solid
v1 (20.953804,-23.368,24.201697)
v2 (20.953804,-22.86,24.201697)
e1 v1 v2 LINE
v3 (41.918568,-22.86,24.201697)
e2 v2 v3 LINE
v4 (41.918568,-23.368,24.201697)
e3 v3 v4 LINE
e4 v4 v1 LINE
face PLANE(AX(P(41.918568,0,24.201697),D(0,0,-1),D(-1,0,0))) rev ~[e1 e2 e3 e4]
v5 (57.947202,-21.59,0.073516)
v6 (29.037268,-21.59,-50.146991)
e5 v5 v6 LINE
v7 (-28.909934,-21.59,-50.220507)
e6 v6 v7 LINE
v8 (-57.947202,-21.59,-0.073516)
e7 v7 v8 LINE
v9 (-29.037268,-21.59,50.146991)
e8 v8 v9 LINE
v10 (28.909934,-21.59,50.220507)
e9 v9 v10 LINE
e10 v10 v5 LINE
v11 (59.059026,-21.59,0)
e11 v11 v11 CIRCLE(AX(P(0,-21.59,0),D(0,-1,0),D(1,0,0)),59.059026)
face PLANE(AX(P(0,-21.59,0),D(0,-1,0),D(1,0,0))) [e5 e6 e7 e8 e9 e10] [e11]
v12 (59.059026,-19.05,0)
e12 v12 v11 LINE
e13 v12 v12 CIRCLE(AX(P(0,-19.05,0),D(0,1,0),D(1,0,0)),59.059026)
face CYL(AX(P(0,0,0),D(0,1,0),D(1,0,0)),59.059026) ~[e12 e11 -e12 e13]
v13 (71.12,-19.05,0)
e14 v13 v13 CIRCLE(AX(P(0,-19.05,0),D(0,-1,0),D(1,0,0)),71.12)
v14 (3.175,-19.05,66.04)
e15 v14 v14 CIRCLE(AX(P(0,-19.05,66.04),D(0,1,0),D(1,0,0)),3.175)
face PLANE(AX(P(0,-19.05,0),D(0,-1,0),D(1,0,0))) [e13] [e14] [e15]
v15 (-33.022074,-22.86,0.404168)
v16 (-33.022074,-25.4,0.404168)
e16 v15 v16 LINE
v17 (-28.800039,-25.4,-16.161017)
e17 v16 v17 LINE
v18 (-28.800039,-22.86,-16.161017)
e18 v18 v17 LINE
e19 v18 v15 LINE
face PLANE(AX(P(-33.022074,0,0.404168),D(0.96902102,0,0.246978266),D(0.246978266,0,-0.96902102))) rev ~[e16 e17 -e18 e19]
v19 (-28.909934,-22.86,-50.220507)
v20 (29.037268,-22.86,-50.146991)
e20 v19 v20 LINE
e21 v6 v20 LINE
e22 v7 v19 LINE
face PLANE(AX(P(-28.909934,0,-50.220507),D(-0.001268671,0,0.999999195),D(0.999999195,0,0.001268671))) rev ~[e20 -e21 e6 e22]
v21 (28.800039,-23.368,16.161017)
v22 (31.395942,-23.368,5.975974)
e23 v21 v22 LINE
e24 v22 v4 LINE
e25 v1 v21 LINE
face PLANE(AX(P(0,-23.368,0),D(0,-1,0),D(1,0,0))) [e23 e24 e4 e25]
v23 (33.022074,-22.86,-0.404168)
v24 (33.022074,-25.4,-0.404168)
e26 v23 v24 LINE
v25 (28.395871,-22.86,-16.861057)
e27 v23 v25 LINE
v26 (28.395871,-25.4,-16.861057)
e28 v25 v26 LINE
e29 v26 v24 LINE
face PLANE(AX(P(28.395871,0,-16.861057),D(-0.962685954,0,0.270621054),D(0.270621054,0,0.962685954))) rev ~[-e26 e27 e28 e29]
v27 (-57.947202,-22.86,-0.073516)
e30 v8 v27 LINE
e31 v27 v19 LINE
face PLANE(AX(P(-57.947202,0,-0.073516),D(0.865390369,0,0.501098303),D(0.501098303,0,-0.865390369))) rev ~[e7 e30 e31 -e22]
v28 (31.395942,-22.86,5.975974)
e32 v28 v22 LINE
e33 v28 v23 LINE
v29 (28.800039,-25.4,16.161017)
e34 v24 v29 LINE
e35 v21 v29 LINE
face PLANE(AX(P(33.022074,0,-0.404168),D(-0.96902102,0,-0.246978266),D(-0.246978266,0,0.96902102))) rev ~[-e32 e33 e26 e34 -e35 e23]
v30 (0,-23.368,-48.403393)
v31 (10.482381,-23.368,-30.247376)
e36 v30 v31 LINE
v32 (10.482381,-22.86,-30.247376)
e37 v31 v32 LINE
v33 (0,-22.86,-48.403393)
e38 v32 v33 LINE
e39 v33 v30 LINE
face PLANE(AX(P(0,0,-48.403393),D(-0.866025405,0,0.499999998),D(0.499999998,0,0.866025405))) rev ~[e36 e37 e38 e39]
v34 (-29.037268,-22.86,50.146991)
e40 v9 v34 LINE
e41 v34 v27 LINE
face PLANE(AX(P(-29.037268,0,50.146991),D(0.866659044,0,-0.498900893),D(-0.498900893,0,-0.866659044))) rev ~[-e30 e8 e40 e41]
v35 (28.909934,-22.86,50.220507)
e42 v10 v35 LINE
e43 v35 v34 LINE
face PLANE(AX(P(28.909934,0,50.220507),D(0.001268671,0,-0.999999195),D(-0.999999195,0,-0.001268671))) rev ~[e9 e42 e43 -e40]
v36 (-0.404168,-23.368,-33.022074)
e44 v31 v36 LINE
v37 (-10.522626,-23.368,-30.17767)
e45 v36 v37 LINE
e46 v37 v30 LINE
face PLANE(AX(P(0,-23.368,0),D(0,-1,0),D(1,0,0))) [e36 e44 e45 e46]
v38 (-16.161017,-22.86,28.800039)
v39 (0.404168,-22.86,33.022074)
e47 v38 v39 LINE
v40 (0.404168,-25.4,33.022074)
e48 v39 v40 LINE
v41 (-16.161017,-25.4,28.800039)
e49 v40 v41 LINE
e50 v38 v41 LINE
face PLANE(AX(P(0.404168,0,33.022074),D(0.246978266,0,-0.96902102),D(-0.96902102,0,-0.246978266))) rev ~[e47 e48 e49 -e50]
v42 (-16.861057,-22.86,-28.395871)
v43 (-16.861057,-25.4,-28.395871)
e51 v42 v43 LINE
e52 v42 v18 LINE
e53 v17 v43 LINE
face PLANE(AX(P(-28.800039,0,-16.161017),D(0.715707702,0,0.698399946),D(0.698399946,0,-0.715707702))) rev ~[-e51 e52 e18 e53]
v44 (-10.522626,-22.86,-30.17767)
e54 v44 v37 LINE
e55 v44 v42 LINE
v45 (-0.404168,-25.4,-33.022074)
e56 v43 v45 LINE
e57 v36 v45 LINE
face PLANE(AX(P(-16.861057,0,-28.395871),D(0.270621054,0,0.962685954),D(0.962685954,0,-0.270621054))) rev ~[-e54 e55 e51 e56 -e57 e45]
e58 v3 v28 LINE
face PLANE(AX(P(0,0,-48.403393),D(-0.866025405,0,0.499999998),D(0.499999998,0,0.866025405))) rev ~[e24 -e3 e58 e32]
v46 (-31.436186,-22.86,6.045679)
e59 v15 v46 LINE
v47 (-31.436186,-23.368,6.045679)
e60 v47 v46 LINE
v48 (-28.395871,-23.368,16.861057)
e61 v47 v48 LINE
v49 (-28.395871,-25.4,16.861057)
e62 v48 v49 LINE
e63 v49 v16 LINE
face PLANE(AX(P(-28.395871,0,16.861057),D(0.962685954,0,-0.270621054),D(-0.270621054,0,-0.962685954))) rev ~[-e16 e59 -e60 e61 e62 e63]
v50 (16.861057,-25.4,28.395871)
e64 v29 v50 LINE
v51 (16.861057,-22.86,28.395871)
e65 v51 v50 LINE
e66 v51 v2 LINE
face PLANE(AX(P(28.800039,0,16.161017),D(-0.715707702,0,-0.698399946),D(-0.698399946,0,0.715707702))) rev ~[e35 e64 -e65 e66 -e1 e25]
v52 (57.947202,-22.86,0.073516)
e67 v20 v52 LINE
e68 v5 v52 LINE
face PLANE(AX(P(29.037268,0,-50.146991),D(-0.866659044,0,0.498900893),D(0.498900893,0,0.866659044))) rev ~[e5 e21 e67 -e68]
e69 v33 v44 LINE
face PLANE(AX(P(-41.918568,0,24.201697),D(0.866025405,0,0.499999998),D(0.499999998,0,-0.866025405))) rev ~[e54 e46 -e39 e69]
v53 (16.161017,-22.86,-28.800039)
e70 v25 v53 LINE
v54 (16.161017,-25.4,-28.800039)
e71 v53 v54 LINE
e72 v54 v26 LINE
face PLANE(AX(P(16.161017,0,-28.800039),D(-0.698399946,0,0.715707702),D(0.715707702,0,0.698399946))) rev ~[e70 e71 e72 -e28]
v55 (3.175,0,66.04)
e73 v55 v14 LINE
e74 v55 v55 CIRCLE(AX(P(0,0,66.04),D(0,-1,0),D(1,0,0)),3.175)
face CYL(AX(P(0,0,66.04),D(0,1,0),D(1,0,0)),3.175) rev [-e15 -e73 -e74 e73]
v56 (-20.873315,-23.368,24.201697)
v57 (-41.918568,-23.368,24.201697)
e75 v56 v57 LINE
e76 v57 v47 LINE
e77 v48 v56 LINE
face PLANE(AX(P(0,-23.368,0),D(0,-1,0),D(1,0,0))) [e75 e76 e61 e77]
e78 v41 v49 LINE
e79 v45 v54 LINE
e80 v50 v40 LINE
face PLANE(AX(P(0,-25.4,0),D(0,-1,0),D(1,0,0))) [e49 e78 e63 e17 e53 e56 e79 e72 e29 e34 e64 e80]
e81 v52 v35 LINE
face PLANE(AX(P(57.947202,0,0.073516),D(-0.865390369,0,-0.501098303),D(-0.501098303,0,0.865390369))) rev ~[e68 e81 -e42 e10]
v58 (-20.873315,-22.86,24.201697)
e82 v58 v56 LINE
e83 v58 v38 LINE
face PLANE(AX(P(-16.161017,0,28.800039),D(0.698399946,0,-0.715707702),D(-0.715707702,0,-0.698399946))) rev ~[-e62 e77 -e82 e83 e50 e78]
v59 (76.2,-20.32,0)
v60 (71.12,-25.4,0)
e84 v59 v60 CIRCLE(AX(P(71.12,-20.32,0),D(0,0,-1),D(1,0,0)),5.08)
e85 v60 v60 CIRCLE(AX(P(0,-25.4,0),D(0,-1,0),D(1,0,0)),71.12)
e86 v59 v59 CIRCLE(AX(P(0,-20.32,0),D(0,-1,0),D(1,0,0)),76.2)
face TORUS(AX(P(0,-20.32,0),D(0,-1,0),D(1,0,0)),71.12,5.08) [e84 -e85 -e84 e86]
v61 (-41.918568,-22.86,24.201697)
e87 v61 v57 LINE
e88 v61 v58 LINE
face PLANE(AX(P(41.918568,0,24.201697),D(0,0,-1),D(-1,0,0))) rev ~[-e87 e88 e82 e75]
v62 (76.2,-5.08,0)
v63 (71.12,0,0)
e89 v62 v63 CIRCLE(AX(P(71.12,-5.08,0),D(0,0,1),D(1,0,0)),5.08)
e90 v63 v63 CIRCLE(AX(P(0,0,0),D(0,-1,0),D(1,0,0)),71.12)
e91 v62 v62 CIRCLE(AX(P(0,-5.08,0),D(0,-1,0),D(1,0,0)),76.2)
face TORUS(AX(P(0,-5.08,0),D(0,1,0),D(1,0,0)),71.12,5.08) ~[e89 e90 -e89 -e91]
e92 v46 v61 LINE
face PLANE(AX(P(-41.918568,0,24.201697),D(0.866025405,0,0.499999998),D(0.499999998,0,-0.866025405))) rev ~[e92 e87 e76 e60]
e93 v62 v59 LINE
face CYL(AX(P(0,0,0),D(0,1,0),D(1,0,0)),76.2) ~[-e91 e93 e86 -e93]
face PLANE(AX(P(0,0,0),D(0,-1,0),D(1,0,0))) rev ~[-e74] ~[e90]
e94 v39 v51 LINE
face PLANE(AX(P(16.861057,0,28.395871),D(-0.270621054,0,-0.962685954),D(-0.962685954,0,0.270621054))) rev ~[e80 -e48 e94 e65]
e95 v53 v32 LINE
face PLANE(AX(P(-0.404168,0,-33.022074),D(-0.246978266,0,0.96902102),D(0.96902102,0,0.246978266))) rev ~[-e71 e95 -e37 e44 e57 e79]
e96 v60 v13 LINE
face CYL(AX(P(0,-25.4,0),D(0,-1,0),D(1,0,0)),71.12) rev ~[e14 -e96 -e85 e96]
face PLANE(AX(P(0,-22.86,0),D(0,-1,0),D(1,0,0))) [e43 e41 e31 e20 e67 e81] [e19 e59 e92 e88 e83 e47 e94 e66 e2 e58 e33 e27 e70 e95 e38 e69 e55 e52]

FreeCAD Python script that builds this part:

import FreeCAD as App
import Part
import Sketcher

V = App.Vector
Q = App.Units.Quantity


def add_polygon(sketch, points):
    """Adds a closed chain of lines whose ends are joined by coincident constraints."""
    first, n = sketch.GeometryCount, len(points)
    for a, b in zip(points, points[1:] + points[:1]):
        sketch.addGeometry(Part.LineSegment(App.Vector(*a, 0), App.Vector(*b, 0)), False)
    for i in range(n):
        sketch.addConstraint(Sketcher.Constraint("Coincident", first + i, 2, first + (i + 1) % n, 1))

doc = App.newDocument("Part")
body = doc.addObject("PartDesign::Body", "Body")

sketch1 = doc.addObject("Sketcher::SketchObject", "Sketch")
body.addObject(sketch1)
sketch1.AttachmentSupport = (doc.XZ_Plane, [""])
sketch1.MapMode = "FlatFace"
sketch1.addGeometry(Part.Circle(V(0, 0, 0), V(0, 0, 1), 76), False)
sketch1.addConstraint([
    Sketcher.Constraint("Coincident", 0, 3, -1, 1),
    Sketcher.Constraint("Diameter", 0, Q("6 in")),
])
pad1 = doc.addObject("PartDesign::Pad", "Pad")
body.addObject(pad1)
pad1.Profile = sketch1
pad1.Length = Q("1 in")
doc.recompute()

fillet = doc.addObject("PartDesign::Fillet", "Fillet")
body.addObject(fillet)
fillet.Base = (pad1, ["Edge1"])
fillet.UseAllEdges = True
fillet.Radius = Q("0.2 in")

sketch2 = doc.addObject("Sketcher::SketchObject", "Sketch001")
body.addObject(sketch2)
sketch2.AttachmentSupport = (doc.XZ_Plane, [""])
sketch2.MapMode = "FlatFace"
sketch2.AttachmentOffset = App.Placement(V(0, 0, 1 * 25.4), App.Rotation())
sketch2.addGeometry(Part.Circle(V(0, 0, 0), V(0, 0, 1), 71), False)
sketch2.addConstraint([
    Sketcher.Constraint("Coincident", 0, 3, -1, 1),
    Sketcher.Constraint("Diameter", 0, Q("5.6 in")),
])
pocket1 = doc.addObject("PartDesign::Pocket", "Pocket")
body.addObject(pocket1)
pocket1.Profile = sketch2
pocket1.Length = Q("0.25 in")

sketch3 = doc.addObject("Sketcher::SketchObject", "Sketch002")
body.addObject(sketch3)
sketch3.AttachmentSupport = (doc.XZ_Plane, [""])
sketch3.MapMode = "FlatFace"
sketch3.addGeometry(Part.Circle(V(0, 66, 0), V(0, 0, 1), 3.2), False)
sketch3.addConstraint([
    Sketcher.Constraint("PointOnObject", 0, 3, -2),
    Sketcher.Constraint("Diameter", 0, Q("0.25 in")),
    Sketcher.Constraint("DistanceY", -1, 1, 0, 3, Q("2.6 in")),
])
pocket2 = doc.addObject("PartDesign::Pocket", "Pocket001")
body.addObject(pocket2)
pocket2.Profile = sketch3
pocket2.Length = Q("1 in")
pocket2.Reversed = True

sketch4 = doc.addObject("Sketcher::SketchObject", "Sketch003")
body.addObject(sketch4)
sketch4.AttachmentSupport = (doc.XZ_Plane, [""])
sketch4.MapMode = "FlatFace"
sketch4.addGeometry(Part.Circle(V(0, 0, 0), V(0, 0, 1), 59), False)
sketch4.addConstraint([
    Sketcher.Constraint("Coincident", 0, 3, -1, 1),
    Sketcher.Constraint("Diameter", 0, Q("118.118052 mm")),
])
pad2 = doc.addObject("PartDesign::Pad", "Pad001")
body.addObject(pad2)
pad2.Profile = sketch4
pad2.Length = Q("0.85 in")

sketch5 = doc.addObject("Sketcher::SketchObject", "Sketch004")
body.addObject(sketch5)
sketch5.AttachmentSupport = (doc.XZ_Plane, [""])
sketch5.MapMode = "FlatFace"
add_polygon(sketch5, [(29, -50), (58, 0), (29, 50), (-29, 50), (-58, 0), (-29, -50)])
sketch5.addConstraint([
    Sketcher.Constraint("Symmetric", 0, 2, 3, 2, -1, 1),
    Sketcher.Constraint("Symmetric", 1, 2, 4, 2, -1, 1),
    Sketcher.Constraint("Symmetric", 2, 2, 5, 2, -1, 1),
    Sketcher.Constraint("Equal", 0, 1),
    Sketcher.Constraint("Equal", 1, 2),
    Sketcher.Constraint("DistanceX", -1, 1, 0, 2, Q("57.947202 mm")),
    Sketcher.Constraint("Distance", 0, Q("57.947248 mm")),
    Sketcher.Constraint("DistanceX", 2, 2, -1, 1, Q("29.037268 mm")),
    Sketcher.Constraint("DistanceY", -1, 1, 2, 2, Q("50.146991 mm")),
])
pad3 = doc.addObject("PartDesign::Pad", "Pad002")
body.addObject(pad3)
pad3.Profile = sketch5
pad3.Length = Q("0.9 in")

sketch6 = doc.addObject("Sketcher::SketchObject", "Sketch005")
body.addObject(sketch6)
sketch6.AttachmentSupport = (doc.XZ_Plane, [""])
sketch6.MapMode = "FlatFace"
add_polygon(sketch6, [(-42, 24), (0, -48), (42, 24)])
sketch6.addConstraint([
    Sketcher.Constraint("Horizontal", 2),
    Sketcher.Constraint("PointOnObject", 0, 2, -2),
    Sketcher.Constraint("Equal", 0, 1),
    Sketcher.Constraint("Angle", 0, Q("-60 deg")),
    Sketcher.Constraint("DistanceX", 2, 2, 2, 1, Q("83.837136 mm")),
    Sketcher.Constraint("DistanceY", 0, 2, -1, 1, Q("48.403393 mm")),
])
pad4 = doc.addObject("PartDesign::Pad", "Pad003")
body.addObject(pad4)
pad4.Profile = sketch6
pad4.Length = Q("0.92 in")

sketch7 = doc.addObject("Sketcher::SketchObject", "Sketch006")
body.addObject(sketch7)
sketch7.AttachmentSupport = (doc.XZ_Plane, [""])
sketch7.MapMode = "FlatFace"
add_polygon(sketch7, [(33, 0), (29, 16), (17, 28), (0, 33), (-16, 29), (-28, 17), (-33, 0), (-29, -16), (-17, -28), (0, -33), (16, -29), (28, -17)])
sketch7.addConstraint([
    Sketcher.Constraint("Symmetric", 0, 2, 6, 2, -1, 1),
    Sketcher.Constraint("Symmetric", 1, 2, 7, 2, -1, 1),
    Sketcher.Constraint("Symmetric", 2, 2, 8, 2, -1, 1),
    Sketcher.Constraint("Symmetric", 3, 2, 9, 2, -1, 1),
    Sketcher.Constraint("Symmetric", 4, 2, 10, 2, -1, 1),
    Sketcher.Constraint("Symmetric", 5, 2, 11, 2, -1, 1),
    Sketcher.Constraint("Perpendicular", 0, 3),
    Sketcher.Constraint("Perpendicular", 1, 4),
    Sketcher.Constraint("Perpendicular", 2, 5),
    Sketcher.Constraint("Equal", 0, 1),
    Sketcher.Constraint("Equal", 1, 2),
    Sketcher.Constraint("Equal", 2, 3),
    Sketcher.Constraint("Equal", 3, 4),
    Sketcher.Constraint("Equal", 4, 5),
    Sketcher.Constraint("DistanceX", -1, 1, 0, 2, Q("28.800039 mm")),
    Sketcher.Constraint("DistanceY", -1, 1, 1, 2, Q("28.395871 mm")),
    Sketcher.Constraint("DistanceX", -1, 1, 2, 2, Q("0.404168 mm")),
    Sketcher.Constraint("DistanceX", 2, 2, 1, 2, Q("16.456889 mm")),
])
pad5 = doc.addObject("PartDesign::Pad", "Pad004")
body.addObject(pad5)
pad5.Profile = sketch7
pad5.Length = Q("1 in")

doc.recompute()
